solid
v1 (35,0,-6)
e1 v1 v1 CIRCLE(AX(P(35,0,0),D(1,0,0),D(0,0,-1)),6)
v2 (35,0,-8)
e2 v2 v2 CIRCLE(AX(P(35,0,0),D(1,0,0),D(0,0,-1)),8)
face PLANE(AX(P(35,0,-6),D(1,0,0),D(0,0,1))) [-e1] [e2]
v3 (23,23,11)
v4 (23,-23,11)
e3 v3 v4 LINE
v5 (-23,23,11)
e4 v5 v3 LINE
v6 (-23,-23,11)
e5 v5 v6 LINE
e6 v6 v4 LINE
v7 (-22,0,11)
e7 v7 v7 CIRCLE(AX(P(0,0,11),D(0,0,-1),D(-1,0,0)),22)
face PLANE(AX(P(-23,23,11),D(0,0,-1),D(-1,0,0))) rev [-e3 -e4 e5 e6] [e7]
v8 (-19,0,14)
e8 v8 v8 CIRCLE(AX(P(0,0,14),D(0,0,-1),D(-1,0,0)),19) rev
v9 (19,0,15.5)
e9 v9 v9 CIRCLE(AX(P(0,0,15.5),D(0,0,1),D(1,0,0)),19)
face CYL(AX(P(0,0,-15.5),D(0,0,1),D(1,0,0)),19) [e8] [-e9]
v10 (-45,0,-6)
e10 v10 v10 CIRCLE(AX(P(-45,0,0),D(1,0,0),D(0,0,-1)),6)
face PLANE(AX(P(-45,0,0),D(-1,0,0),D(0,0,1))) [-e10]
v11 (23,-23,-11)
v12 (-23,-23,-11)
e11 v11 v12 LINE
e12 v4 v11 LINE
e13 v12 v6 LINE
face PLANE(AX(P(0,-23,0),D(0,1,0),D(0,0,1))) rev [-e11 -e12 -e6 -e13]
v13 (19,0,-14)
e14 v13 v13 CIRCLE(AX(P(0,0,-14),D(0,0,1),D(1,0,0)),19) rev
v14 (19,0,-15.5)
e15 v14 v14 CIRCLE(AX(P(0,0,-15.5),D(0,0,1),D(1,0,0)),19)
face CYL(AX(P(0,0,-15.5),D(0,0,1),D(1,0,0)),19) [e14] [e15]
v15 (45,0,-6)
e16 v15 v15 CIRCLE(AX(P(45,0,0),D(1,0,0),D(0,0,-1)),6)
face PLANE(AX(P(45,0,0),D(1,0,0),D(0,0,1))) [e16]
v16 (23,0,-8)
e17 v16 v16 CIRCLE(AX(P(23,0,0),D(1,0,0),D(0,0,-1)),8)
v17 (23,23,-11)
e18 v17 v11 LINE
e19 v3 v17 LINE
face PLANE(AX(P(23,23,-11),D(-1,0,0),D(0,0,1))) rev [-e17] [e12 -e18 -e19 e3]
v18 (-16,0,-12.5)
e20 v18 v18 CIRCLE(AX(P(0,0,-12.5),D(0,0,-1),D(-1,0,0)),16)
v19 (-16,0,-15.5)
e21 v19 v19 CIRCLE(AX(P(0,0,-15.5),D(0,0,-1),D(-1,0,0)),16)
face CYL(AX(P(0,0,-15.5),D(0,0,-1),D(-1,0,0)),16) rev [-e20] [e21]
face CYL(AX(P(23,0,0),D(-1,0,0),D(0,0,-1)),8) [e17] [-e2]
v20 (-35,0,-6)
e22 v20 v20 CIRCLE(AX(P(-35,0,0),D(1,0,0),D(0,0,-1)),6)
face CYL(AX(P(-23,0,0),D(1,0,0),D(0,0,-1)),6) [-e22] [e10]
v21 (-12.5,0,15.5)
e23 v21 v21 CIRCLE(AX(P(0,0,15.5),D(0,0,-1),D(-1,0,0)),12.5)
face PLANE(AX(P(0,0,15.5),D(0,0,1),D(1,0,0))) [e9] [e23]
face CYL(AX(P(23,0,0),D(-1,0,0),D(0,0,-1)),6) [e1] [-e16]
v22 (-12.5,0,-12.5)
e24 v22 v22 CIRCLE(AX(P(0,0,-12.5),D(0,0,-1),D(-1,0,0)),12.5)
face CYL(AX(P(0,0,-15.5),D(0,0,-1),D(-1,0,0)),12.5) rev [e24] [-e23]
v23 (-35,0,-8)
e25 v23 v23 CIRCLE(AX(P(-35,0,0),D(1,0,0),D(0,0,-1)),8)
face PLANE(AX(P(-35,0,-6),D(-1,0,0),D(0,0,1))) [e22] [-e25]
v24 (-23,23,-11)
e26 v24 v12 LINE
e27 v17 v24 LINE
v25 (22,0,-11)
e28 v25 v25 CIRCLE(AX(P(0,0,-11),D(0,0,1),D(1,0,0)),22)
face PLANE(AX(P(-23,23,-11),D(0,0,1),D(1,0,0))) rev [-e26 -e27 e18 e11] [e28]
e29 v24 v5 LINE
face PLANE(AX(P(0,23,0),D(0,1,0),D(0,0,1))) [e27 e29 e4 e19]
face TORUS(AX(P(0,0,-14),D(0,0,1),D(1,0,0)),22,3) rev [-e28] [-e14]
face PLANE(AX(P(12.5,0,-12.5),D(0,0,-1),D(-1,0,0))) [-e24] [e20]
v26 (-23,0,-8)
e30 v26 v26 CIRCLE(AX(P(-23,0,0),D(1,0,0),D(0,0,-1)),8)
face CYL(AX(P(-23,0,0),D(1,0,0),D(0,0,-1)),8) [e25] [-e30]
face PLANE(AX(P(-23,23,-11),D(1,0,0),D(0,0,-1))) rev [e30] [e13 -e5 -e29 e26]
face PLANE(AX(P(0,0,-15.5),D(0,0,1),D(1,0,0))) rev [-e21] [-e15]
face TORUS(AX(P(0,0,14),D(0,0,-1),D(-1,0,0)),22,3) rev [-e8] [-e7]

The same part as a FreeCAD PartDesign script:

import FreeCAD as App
import Part
import Sketcher
from FreeCAD import Vector
Q = App.Units.Quantity


def edges_at(feature, points):
    """Names of the edges that pass closest to the given points."""
    edges = feature.Shape.Edges
    near = lambda p: min(range(len(edges)), key=lambda i: edges[i].distToShape(Part.Vertex(*p))[0])
    return sorted({f"Edge{near(p) + 1}" for p in points})


def add_polygon(sketch, points):
    """Adds a closed chain of lines whose ends are joined by coincident constraints."""
    first, n = sketch.GeometryCount, len(points)
    for a, b in zip(points, points[1:] + points[:1]):
        sketch.addGeometry(Part.LineSegment(App.Vector(*a, 0), App.Vector(*b, 0)), False)
    for i in range(n):
        sketch.addConstraint(Sketcher.Constraint("Coincident", first + i, 2, first + (i + 1) % n, 1))

doc = App.newDocument("Part")
params = doc.addObject("Spreadsheet::Sheet", "Params")
for row, (alias, value) in enumerate([
    ("sketch1_width", "46 mm"),
    ("sketch1_height", "22 mm"),
    ("pad1_length", "46 mm"),
    ("sketch2_diameter", "38 mm"),
    ("pad2_length", "4.5 mm"),
    ("pad2_length2", "26.5 mm"),
    ("sketch3_width", "16 mm"),
    ("sketch3_height", "31 mm"),
    ("sketch3_height2", "28 mm"),
    ("sketch3_width2", "12.5 mm"),
    ("groove_angle", "360 deg"),
    ("sketch4_width", "22 mm"),
    ("sketch4_width2", "12 mm"),
    ("sketch4_height", "6 mm"),
    ("sketch4_height2", "8 mm"),
    ("revolution_angle", "360 deg"),
    ("fillet_radius", "3 mm"),
], start=1):
    params.set(f"A{row}", alias)
    params.set(f"B{row}", "=" + value)
    params.setAlias(f"B{row}", alias)

body = doc.addObject("PartDesign::Body", "Body")

# Sketch on XZ plane
sketch1 = body.newObject("Sketcher::SketchObject", "Sketch")
sketch1.AttachmentSupport = (doc.getObject("XZ_Plane"), [""])
sketch1.MapMode = "FlatFace"
add_polygon(sketch1, [(-23, -11), (-23, 11), (23, 11), (23, -11)])  # lines 0-3
sketch1.addConstraint([
    Sketcher.Constraint("Vertical", 0),
    Sketcher.Constraint("Horizontal", 1),
    Sketcher.Constraint("Vertical", 2),
    Sketcher.Constraint("Horizontal", 3),
    Sketcher.Constraint("Symmetric", 0, 2, 2, 2, -1, 1),
    Sketcher.Constraint("DistanceX", 1, 1, 1, 2, Q("46 mm")),
    Sketcher.Constraint("DistanceY", 0, 1, 0, 2, Q("22 mm")),
])
sketch1.setExpression("Constraints[9]", "Params.sketch1_width")
sketch1.setExpression("Constraints[10]", "Params.sketch1_height")
pad1 = body.newObject("PartDesign::Pad", "Pad")
pad1.Profile = sketch1
pad1.setExpression("Length", "Params.pad1_length")
pad1.Midplane = True

# Sketch on XY plane
sketch2 = body.newObject("Sketcher::SketchObject", "Sketch001")
sketch2.AttachmentSupport = (doc.getObject("XY_Plane"), [""])
sketch2.MapMode = "FlatFace"
sketch2.AttachmentOffset = App.Placement(Vector(0, 0, 11), App.Rotation())
sketch2.addGeometry(Part.Circle(Vector(0, 0, 0), Vector(0, 0, 1), 19), False)
sketch2.addConstraint([
    Sketcher.Constraint("Coincident", 0, 3, -1, 1),
    Sketcher.Constraint("Diameter", 0, Q("38 mm")),
])
sketch2.setExpression("Constraints[1]", "Params.sketch2_diameter")
pad2 = body.newObject("PartDesign::Pad", "Pad001")
pad2.Profile = sketch2
pad2.Type = "TwoLengths"
pad2.setExpression("Length", "Params.pad2_length")
pad2.setExpression("Length2", "Params.pad2_length2")

# Sketch on XZ plane
sketch3 = body.newObject("Sketcher::SketchObject", "Sketch002")
sketch3.AttachmentSupport = (doc.getObject("XZ_Plane"), [""])
sketch3.MapMode = "FlatFace"
add_polygon(sketch3, [(0, -15.5), (0, 15.5), (12.5, 15.5), (12.5, -12.5), (16, -12.5), (16, -15.5)])  # lines 0-5
sketch3.addConstraint([
    Sketcher.Constraint("Vertical", 0),
    Sketcher.Constraint("Horizontal", 1),
    Sketcher.Constraint("Vertical", 2),
    Sketcher.Constraint("Horizontal", 3),
    Sketcher.Constraint("Vertical", 4),
    Sketcher.Constraint("Horizontal", 5),
    Sketcher.Constraint("Symmetric", 0, 2, 5, 2, -1, 1),
    Sketcher.Constraint("DistanceX", 5, 2, 5, 1, Q("16 mm")),
    Sketcher.Constraint("DistanceY", 0, 1, 0, 2, Q("31 mm")),
    Sketcher.Constraint("DistanceY", 2, 2, 2, 1, Q("28 mm")),
    Sketcher.Constraint("DistanceX", 1, 1, 1, 2, Q("12.5 mm")),
])
sketch3.setExpression("Constraints[13]", "Params.sketch3_width")
sketch3.setExpression("Constraints[14]", "Params.sketch3_height")
sketch3.setExpression("Constraints[15]", "Params.sketch3_height2")
sketch3.setExpression("Constraints[16]", "Params.sketch3_width2")
groove = body.newObject("PartDesign::Groove", "Groove")
groove.Profile = sketch3
groove.ReferenceAxis = (sketch3, ["V_Axis"])
groove.setExpression("Angle", "Params.groove_angle")

# Sketch on XZ plane
sketch4 = body.newObject("Sketcher::SketchObject", "Sketch003")
sketch4.AttachmentSupport = (doc.getObject("XZ_Plane"), [""])
sketch4.MapMode = "FlatFace"
add_polygon(sketch4, [(-45, -6), (-45, 0), (-23, 0), (-23, -8), (-35, -8), (-35, -6)])  # lines 0-5
sketch4.addConstraint([
    Sketcher.Constraint("Vertical", 0),
    Sketcher.Constraint("Horizontal", 1),
    Sketcher.Constraint("Vertical", 2),
    Sketcher.Constraint("Horizontal", 3),
    Sketcher.Constraint("Vertical", 4),
    Sketcher.Constraint("Horizontal", 5),
    Sketcher.Constraint("PointOnObject", 0, 2, -1),
    Sketcher.Constraint("DistanceX", 1, 1, 1, 2, Q("22 mm")),
    Sketcher.Constraint("DistanceX", 3, 2, 3, 1, Q("12 mm")),
    Sketcher.Constraint("DistanceY", 0, 1, 0, 2, Q("6 mm")),
    Sketcher.Constraint("DistanceY", 2, 2, 2, 1, Q("8 mm")),
    Sketcher.Constraint("DistanceX", 0, 2, -1, 1, Q("45 mm")),
])
sketch4.setExpression("Constraints[13]", "Params.sketch4_width")
sketch4.setExpression("Constraints[14]", "Params.sketch4_width2")
sketch4.setExpression("Constraints[15]", "Params.sketch4_height")
sketch4.setExpression("Constraints[16]", "Params.sketch4_height2")
revolution = body.newObject("PartDesign::Revolution", "Revolution")
revolution.Profile = sketch4
revolution.ReferenceAxis = (sketch4, ["H_Axis"])
revolution.setExpression("Angle", "Params.revolution_angle")
doc.recompute()

mirrored = body.newObject("PartDesign::Mirrored", "Mirrored")
mirrored.Originals = [revolution]
mirrored.MirrorPlane = (doc.getObject("YZ_Plane"), [""])
body.Tip = mirrored
doc.recompute()

fillet = body.newObject("PartDesign::Fillet", "Fillet")
fillet.Base = (mirrored, edges_at(mirrored, [(-19, 0, -11), (-19, 0, 11)]))
fillet.setExpression("Radius", "Params.fillet_radius")

doc.recompute()
